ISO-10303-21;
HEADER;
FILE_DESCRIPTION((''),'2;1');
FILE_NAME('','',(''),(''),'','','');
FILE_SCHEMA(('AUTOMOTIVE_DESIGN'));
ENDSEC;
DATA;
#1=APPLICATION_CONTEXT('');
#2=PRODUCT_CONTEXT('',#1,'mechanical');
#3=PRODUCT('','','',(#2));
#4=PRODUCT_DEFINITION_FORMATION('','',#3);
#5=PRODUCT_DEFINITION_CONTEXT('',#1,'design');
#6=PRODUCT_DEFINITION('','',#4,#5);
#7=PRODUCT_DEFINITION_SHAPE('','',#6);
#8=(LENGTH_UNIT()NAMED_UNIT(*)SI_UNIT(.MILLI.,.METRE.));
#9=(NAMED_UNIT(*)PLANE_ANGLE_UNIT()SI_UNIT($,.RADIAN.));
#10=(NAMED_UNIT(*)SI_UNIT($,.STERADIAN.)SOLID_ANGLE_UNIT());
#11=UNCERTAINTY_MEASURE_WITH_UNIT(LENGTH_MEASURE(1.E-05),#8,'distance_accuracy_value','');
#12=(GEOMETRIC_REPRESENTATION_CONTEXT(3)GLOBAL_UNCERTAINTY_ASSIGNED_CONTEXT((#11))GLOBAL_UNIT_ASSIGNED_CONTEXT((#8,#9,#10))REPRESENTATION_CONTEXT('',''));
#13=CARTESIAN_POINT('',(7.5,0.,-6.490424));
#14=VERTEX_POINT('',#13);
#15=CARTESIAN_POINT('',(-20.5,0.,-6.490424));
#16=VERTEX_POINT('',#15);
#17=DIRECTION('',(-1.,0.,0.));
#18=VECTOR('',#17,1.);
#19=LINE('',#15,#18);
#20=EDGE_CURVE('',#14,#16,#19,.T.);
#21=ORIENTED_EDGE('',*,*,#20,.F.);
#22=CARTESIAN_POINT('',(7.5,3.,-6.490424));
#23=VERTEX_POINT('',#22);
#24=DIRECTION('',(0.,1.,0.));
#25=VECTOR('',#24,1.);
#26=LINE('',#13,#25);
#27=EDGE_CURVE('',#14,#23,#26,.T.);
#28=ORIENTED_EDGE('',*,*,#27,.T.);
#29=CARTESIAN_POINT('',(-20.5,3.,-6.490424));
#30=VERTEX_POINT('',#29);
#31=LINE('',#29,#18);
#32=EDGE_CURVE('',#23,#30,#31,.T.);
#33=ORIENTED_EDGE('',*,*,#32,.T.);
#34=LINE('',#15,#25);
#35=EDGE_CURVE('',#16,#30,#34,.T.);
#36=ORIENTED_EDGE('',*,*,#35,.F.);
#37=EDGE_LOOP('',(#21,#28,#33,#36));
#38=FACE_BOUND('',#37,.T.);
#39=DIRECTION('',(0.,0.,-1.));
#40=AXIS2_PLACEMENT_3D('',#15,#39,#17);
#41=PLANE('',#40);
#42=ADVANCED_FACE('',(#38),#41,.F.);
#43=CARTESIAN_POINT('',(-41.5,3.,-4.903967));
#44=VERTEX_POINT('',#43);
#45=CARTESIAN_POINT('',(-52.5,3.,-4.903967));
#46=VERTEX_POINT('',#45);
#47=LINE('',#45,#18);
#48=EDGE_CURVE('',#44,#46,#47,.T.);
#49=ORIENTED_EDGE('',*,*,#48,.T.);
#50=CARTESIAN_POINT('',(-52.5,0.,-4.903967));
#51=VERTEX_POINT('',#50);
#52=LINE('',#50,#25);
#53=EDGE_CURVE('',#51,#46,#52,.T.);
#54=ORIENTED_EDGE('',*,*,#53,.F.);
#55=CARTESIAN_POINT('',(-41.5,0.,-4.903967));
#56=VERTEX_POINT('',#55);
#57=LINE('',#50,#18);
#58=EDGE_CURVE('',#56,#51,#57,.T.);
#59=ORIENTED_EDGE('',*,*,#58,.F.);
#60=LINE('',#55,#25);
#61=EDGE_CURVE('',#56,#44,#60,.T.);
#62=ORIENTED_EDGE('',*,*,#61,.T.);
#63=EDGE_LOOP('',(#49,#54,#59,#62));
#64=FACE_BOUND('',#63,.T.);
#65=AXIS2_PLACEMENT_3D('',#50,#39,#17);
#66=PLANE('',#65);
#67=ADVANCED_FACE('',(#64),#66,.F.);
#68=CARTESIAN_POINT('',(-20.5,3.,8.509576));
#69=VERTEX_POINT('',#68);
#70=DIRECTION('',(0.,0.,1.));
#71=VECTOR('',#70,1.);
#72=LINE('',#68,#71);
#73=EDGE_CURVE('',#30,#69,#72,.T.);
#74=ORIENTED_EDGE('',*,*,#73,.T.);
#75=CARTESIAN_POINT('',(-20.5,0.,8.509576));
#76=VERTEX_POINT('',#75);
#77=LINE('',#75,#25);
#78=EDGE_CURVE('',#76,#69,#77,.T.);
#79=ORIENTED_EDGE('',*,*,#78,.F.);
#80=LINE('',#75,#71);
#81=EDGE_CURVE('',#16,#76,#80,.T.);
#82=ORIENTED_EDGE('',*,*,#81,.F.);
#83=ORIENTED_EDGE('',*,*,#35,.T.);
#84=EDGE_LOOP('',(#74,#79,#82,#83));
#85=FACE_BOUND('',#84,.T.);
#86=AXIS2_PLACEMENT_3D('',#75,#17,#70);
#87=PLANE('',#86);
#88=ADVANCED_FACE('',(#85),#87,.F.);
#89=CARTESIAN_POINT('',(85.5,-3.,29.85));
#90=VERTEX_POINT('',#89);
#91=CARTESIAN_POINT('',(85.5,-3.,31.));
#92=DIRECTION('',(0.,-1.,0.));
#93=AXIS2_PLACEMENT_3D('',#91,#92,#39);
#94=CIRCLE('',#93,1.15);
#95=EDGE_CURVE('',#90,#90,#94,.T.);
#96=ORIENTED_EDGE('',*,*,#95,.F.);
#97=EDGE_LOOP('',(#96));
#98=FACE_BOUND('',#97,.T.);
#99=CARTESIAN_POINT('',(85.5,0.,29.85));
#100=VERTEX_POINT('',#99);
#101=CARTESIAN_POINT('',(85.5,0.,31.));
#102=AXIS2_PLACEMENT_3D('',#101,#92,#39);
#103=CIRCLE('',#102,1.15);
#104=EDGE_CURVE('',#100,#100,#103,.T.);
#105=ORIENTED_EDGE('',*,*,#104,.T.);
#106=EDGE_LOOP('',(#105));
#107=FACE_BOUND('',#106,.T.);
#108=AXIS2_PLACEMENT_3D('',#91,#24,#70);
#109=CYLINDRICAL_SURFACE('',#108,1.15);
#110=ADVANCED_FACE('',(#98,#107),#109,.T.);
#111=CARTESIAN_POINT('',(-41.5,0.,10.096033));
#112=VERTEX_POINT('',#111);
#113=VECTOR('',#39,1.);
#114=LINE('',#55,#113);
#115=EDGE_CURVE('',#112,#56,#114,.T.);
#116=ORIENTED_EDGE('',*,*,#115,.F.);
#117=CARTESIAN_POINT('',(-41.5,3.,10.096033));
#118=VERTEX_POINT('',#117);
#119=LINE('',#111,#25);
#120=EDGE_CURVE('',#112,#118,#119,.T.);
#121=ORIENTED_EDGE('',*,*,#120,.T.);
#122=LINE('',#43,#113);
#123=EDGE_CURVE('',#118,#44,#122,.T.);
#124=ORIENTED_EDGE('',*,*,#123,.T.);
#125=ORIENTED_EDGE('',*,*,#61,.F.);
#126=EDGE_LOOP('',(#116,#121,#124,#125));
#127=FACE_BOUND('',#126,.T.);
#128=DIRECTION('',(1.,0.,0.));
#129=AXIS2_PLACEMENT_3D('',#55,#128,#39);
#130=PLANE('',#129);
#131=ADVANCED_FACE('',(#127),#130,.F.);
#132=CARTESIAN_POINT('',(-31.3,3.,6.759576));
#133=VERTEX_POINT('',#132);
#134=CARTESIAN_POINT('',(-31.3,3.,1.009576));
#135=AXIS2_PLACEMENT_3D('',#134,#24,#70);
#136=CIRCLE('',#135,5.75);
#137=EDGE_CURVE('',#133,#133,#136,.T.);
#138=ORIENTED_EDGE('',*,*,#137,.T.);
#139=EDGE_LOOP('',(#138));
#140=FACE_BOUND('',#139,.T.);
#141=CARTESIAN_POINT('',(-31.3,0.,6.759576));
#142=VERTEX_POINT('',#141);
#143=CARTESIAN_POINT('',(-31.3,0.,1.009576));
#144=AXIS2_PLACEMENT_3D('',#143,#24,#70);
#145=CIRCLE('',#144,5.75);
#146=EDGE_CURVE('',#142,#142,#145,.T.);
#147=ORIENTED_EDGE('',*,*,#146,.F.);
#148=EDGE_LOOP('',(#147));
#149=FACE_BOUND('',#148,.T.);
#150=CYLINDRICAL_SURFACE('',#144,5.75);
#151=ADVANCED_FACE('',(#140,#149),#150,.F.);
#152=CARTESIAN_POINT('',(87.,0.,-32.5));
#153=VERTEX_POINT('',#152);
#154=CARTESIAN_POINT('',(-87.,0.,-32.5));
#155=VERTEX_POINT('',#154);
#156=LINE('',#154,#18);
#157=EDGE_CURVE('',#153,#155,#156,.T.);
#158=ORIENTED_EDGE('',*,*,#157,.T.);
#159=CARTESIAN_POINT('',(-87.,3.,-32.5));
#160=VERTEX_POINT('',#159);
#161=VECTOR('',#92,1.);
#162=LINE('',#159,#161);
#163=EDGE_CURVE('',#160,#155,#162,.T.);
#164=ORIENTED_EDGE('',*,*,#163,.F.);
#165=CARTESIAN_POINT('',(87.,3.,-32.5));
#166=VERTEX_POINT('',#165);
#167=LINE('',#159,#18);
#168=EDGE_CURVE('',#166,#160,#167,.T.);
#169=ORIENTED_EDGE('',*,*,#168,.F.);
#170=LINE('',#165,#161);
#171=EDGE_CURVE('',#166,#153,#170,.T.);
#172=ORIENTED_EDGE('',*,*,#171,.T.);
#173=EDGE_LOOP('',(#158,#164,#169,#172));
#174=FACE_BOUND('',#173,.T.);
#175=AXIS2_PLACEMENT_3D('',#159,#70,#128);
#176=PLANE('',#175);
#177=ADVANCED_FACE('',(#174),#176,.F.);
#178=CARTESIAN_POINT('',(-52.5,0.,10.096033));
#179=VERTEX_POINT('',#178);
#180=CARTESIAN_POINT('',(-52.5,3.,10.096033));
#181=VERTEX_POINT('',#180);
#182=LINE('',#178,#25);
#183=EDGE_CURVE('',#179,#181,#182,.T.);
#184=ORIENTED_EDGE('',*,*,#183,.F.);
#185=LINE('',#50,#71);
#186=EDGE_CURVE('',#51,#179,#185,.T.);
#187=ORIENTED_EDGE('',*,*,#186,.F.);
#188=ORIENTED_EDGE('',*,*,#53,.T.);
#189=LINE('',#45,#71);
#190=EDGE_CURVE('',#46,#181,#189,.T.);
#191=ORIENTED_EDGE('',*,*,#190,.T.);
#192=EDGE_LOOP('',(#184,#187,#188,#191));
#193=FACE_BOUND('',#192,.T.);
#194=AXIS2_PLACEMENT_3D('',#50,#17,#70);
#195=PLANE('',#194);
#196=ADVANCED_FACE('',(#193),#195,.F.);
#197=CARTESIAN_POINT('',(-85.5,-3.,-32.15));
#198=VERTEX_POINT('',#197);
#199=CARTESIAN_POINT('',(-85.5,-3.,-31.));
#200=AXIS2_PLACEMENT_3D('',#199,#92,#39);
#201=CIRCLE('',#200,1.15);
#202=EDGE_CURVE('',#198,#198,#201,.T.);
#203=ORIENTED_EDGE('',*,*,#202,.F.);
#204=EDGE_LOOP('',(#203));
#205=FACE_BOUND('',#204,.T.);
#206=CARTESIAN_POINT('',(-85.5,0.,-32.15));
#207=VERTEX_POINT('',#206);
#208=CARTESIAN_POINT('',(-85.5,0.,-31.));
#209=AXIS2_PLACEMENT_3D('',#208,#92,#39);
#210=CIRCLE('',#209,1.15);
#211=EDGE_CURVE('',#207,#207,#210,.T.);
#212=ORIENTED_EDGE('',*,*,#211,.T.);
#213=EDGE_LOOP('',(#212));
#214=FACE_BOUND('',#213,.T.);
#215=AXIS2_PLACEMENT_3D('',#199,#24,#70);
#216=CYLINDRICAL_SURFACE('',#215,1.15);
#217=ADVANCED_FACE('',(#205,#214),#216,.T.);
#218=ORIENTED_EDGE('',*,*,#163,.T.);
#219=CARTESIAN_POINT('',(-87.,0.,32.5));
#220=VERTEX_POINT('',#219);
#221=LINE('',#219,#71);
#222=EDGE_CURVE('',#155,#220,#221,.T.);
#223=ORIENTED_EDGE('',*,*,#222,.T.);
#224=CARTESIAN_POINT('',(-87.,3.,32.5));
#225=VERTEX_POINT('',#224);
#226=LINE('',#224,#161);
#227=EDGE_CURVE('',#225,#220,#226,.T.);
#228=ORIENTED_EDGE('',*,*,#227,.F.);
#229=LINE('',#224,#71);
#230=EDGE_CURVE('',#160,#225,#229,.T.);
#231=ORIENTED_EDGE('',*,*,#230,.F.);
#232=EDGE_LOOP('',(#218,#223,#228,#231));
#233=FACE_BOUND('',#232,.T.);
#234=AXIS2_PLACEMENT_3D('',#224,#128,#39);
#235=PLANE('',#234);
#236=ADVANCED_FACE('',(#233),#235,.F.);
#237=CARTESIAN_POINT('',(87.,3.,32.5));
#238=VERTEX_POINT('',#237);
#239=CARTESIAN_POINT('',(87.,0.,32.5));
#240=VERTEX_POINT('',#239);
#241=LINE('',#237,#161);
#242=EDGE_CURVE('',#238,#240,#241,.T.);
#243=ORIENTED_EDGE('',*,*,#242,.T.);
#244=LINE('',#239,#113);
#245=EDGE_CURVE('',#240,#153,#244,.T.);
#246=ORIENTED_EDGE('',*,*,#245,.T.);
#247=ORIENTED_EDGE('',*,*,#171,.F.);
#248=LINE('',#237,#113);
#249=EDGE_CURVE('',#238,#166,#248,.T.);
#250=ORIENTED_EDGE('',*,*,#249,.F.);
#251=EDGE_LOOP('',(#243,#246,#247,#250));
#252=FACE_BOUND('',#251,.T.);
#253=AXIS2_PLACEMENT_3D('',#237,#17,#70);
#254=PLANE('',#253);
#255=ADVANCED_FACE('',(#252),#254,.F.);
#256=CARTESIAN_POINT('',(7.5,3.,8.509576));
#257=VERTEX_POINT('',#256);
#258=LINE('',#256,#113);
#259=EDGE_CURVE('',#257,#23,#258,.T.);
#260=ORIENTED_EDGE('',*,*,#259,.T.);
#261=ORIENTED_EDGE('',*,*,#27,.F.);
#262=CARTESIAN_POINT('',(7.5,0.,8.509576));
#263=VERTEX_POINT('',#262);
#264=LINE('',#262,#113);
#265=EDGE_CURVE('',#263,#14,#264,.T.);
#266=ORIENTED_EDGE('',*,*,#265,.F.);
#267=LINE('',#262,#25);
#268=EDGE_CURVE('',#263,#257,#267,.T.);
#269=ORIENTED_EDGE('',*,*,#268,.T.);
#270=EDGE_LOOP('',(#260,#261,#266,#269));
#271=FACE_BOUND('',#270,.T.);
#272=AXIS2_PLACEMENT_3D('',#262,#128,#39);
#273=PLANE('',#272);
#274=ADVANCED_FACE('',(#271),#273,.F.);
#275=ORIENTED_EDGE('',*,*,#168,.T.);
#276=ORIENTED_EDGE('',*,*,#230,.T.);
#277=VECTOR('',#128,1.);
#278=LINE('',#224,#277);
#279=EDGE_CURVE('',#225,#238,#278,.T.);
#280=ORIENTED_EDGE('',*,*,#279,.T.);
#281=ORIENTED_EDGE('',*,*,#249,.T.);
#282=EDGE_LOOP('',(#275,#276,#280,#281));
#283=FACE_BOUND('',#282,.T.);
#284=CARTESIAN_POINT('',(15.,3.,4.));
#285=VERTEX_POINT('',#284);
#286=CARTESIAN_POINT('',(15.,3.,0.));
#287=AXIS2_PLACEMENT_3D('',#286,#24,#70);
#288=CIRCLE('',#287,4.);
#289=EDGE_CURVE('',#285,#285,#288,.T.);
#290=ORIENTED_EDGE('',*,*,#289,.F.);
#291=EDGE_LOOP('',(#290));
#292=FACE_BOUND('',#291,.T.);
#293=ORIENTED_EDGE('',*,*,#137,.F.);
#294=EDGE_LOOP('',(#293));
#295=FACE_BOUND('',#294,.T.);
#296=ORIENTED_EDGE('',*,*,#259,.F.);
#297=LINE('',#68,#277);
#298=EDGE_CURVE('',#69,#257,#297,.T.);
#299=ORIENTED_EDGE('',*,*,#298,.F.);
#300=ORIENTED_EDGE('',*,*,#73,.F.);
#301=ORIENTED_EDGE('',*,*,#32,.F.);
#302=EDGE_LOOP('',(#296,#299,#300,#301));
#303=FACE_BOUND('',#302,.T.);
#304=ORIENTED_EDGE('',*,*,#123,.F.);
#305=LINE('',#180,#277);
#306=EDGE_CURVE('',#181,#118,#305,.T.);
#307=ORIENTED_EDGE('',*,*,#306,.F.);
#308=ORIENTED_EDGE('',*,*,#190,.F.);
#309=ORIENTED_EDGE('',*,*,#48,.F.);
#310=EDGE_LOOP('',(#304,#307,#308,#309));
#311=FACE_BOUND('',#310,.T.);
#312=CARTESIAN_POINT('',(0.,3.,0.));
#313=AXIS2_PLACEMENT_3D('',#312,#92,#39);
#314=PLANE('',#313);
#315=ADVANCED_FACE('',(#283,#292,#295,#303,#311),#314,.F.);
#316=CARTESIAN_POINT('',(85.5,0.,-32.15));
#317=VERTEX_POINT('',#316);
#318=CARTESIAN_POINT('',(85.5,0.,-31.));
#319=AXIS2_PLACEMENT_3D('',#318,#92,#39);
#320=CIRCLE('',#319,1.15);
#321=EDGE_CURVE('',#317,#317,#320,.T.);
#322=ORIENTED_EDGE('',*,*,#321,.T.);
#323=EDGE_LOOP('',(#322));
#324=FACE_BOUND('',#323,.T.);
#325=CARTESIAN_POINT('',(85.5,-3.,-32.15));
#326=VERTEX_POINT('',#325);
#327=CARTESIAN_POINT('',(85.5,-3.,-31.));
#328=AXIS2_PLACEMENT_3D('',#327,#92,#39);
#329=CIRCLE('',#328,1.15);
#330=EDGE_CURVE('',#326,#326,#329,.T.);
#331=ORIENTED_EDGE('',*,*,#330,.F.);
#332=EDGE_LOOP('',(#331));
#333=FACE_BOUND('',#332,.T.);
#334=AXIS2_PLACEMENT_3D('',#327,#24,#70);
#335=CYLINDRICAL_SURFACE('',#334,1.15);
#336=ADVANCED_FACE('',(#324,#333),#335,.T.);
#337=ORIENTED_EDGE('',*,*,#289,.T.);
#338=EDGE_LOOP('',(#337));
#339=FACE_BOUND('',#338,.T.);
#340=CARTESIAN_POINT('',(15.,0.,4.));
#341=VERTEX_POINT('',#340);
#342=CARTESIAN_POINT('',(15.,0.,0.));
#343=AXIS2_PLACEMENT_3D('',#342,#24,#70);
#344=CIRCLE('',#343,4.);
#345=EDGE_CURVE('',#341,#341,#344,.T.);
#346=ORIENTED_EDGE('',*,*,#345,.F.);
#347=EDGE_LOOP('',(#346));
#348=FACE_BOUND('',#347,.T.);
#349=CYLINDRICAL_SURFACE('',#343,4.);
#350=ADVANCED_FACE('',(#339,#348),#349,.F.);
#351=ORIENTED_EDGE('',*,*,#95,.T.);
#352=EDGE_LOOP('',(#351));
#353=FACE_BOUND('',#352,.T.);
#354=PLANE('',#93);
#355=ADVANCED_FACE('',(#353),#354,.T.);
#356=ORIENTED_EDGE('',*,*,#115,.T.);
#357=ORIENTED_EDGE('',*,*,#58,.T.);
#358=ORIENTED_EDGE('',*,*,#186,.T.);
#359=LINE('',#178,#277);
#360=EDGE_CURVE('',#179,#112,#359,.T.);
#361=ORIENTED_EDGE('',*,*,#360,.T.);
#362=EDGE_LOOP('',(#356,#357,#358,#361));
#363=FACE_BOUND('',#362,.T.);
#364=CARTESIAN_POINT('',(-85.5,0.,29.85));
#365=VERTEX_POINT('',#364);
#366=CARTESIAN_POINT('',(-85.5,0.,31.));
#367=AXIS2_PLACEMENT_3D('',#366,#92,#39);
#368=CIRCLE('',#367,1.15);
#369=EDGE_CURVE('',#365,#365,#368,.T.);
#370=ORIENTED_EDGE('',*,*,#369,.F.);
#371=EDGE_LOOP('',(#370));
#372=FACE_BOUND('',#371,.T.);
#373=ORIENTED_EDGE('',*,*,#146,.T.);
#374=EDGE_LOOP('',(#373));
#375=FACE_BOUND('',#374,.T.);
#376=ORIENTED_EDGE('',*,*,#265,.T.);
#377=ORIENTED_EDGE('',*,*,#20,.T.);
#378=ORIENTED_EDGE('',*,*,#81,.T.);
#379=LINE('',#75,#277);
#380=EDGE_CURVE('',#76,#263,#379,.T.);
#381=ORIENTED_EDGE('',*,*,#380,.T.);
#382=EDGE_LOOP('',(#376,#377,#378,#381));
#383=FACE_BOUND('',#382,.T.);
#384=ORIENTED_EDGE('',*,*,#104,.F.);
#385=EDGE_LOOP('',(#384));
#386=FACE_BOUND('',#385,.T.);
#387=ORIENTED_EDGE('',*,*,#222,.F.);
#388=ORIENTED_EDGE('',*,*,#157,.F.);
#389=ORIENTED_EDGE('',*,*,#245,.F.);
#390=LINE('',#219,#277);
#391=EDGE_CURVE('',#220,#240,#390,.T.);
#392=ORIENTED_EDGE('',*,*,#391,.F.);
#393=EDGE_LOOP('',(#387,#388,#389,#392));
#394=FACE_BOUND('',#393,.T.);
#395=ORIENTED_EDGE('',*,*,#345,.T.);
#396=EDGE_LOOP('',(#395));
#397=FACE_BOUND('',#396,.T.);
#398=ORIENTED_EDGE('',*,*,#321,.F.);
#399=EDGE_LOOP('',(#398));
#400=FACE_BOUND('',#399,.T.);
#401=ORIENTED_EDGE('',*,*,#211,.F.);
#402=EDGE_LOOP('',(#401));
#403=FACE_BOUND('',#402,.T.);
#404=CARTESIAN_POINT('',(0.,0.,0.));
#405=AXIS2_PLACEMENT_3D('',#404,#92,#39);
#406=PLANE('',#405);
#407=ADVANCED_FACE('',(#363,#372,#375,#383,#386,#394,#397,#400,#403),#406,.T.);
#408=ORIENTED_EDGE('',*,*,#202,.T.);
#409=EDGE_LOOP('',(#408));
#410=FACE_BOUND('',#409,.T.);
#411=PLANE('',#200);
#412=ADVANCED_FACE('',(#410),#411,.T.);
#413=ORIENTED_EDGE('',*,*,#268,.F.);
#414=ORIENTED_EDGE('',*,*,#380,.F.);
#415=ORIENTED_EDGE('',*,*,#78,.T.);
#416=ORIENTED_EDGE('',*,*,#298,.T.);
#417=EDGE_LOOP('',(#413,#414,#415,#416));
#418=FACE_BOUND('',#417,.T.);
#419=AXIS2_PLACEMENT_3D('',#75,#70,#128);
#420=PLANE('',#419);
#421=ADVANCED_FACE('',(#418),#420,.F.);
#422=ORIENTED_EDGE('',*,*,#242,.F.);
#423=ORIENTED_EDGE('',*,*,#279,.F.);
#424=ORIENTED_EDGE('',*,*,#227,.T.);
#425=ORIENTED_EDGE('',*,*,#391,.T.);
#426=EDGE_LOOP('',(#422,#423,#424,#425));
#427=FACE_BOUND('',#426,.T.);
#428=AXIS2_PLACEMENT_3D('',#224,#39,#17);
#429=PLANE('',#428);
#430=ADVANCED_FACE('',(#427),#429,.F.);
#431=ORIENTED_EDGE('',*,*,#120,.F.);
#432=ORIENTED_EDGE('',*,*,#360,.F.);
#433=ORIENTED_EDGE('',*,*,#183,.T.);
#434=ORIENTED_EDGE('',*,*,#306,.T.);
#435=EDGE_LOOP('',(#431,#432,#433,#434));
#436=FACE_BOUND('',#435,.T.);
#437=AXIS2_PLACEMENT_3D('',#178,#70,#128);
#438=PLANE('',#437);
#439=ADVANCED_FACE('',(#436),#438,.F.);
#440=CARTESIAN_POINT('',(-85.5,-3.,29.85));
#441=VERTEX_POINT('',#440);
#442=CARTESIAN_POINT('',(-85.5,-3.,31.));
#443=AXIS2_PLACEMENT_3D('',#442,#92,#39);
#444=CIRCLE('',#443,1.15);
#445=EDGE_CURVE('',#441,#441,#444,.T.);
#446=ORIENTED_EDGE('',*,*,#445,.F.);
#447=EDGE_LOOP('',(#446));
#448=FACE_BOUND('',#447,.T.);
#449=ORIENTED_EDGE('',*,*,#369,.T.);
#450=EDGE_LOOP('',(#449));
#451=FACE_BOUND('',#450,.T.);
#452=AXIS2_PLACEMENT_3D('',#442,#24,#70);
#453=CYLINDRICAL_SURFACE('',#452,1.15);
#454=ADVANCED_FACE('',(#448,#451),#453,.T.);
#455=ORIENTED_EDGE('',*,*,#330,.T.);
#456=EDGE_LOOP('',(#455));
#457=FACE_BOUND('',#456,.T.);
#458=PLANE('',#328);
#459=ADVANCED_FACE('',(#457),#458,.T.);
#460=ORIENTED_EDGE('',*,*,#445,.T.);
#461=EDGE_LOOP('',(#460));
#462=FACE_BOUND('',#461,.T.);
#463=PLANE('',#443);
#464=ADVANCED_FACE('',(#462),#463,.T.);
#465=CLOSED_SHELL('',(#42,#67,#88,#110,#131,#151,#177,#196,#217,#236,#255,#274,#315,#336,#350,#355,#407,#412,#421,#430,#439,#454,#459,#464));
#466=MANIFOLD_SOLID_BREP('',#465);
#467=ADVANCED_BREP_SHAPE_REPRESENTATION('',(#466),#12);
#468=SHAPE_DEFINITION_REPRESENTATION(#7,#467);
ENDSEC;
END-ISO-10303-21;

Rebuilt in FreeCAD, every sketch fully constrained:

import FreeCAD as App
import Part
import Sketcher

V = App.Vector
Q = App.Units.Quantity


def add_polygon(sketch, points):
    """Adds a closed chain of lines whose ends are joined by coincident constraints."""
    first, n = sketch.GeometryCount, len(points)
    for a, b in zip(points, points[1:] + points[:1]):
        sketch.addGeometry(Part.LineSegment(App.Vector(*a, 0), App.Vector(*b, 0)), False)
    for i in range(n):
        sketch.addConstraint(Sketcher.Constraint("Coincident", first + i, 2, first + (i + 1) % n, 1))

doc = App.newDocument("Part")
body = doc.addObject("PartDesign::Body", "Body")

# Sketch on XZ plane
sketch1 = doc.addObject("Sketcher::SketchObject", "Sketch")
body.addObject(sketch1)
sketch1.AttachmentSupport = (doc.XZ_Plane, [""])
sketch1.MapMode = "FlatFace"
add_polygon(sketch1, [(-87, -32), (-87, 32), (87, 32), (87, -32)])  # lines 0-3
sketch1.addConstraint([
    Sketcher.Constraint("Vertical", 0),
    Sketcher.Constraint("Horizontal", 1),
    Sketcher.Constraint("Vertical", 2),
    Sketcher.Constraint("Horizontal", 3),
    Sketcher.Constraint("Symmetric", 0, 2, 2, 2, -1, 1),
    Sketcher.Constraint("DistanceX", 1, 1, 1, 2, Q("174 mm")),
    Sketcher.Constraint("DistanceY", 0, 1, 0, 2, Q("65 mm")),
])
pad1 = doc.addObject("PartDesign::Pad", "Pad")
body.addObject(pad1)
pad1.Profile = sketch1
pad1.Length = 3
pad1.Reversed = True

# Sketch on XZ plane
sketch2 = doc.addObject("Sketcher::SketchObject", "Sketch001")
body.addObject(sketch2)
sketch2.AttachmentSupport = (doc.XZ_Plane, [""])
sketch2.MapMode = "FlatFace"
sketch2.AttachmentOffset = App.Placement(V(0, 0, -3), App.Rotation())
sketch2.addGeometry(Part.Circle(V(15, 0, 0), V(0, 0, 1), 4), False)  # 0
sketch2.addGeometry(Part.Circle(V(-31.3, 1, 0), V(0, 0, 1), 5.8), False)  # 1
add_polygon(sketch2, [(-20.5, -6.5), (-20.5, 8.5), (7.5, 8.5), (7.5, -6.5)])  # lines 2-5
add_polygon(sketch2, [(-52.5, -4.9), (-52.5, 10.1), (-41.5, 10.1), (-41.5, -4.9)])  # lines 6-9
sketch2.addConstraint([
    Sketcher.Constraint("Vertical", 2),
    Sketcher.Constraint("Horizontal", 3),
    Sketcher.Constraint("Vertical", 4),
    Sketcher.Constraint("Horizontal", 5),
    Sketcher.Constraint("Vertical", 6),
    Sketcher.Constraint("Horizontal", 7),
    Sketcher.Constraint("Vertical", 8),
    Sketcher.Constraint("Horizontal", 9),
    Sketcher.Constraint("PointOnObject", 0, 3, -1),
    Sketcher.Constraint("Equal", 4, 6),
    Sketcher.Constraint("Diameter", 0, Q("8 mm")),
    Sketcher.Constraint("Diameter", 1, Q("11.5 mm")),
    Sketcher.Constraint("DistanceX", 3, 1, 3, 2, Q("28 mm")),
    Sketcher.Constraint("DistanceX", 7, 1, 7, 2, Q("11 mm")),
    Sketcher.Constraint("DistanceY", 2, 1, 2, 2, Q("15 mm")),
    Sketcher.Constraint("DistanceX", -1, 1, 0, 3, Q("15 mm")),
    Sketcher.Constraint("DistanceX", 6, 2, 2, 2, Q("32 mm")),
    Sketcher.Constraint("DistanceX", 1, 3, -1, 1, Q("31.3 mm")),
    Sketcher.Constraint("DistanceX", 2, 2, -1, 1, Q("20.5 mm")),
    Sketcher.Constraint("DistanceY", 1, 3, 2, 2, Q("7.5 mm")),
    Sketcher.Constraint("DistanceY", -1, 1, 1, 3, Q("1.009576 mm")),
    Sketcher.Constraint("DistanceY", -1, 1, 6, 2, Q("10.096033 mm")),
])
pocket1 = doc.addObject("PartDesign::Pocket", "Pocket")
body.addObject(pocket1)
pocket1.Profile = sketch2
pocket1.Length = 3
pocket1.Reversed = True

# Sketch on XZ plane
sketch3 = doc.addObject("Sketcher::SketchObject", "Sketch002")
body.addObject(sketch3)
sketch3.AttachmentSupport = (doc.XZ_Plane, [""])
sketch3.MapMode = "FlatFace"
sketch3.addGeometry([
    Part.Circle(V(-85.5, 31, 0), V(0, 0, 1), 1.1),
    Part.Circle(V(85.5, 31, 0), V(0, 0, 1), 1.1),
    Part.Circle(V(85.5, -31, 0), V(0, 0, 1), 1.1),
    Part.Circle(V(-85.5, -31, 0), V(0, 0, 1), 1.1),
], False)
sketch3.addConstraint([
    Sketcher.Constraint("Equal", 0, 1),
    Sketcher.Constraint("Equal", 1, 2),
    Sketcher.Constraint("Equal", 2, 3),
    Sketcher.Constraint("Symmetric", 0, 3, 2, 3, -1, 1),
    Sketcher.Constraint("Symmetric", 1, 3, 3, 3, -1, 1),
    Sketcher.Constraint("Symmetric", 0, 3, 1, 3, -2),
    Sketcher.Constraint("Diameter", 0, Q("2.3 mm")),
    Sketcher.Constraint("DistanceY", -1, 1, 0, 3, Q("31 mm")),
    Sketcher.Constraint("DistanceX", 0, 3, 1, 3, Q("171 mm")),
])
pad2 = doc.addObject("PartDesign::Pad", "Pad001")
body.addObject(pad2)
pad2.Profile = sketch3
pad2.Length = 3

doc.recompute()
